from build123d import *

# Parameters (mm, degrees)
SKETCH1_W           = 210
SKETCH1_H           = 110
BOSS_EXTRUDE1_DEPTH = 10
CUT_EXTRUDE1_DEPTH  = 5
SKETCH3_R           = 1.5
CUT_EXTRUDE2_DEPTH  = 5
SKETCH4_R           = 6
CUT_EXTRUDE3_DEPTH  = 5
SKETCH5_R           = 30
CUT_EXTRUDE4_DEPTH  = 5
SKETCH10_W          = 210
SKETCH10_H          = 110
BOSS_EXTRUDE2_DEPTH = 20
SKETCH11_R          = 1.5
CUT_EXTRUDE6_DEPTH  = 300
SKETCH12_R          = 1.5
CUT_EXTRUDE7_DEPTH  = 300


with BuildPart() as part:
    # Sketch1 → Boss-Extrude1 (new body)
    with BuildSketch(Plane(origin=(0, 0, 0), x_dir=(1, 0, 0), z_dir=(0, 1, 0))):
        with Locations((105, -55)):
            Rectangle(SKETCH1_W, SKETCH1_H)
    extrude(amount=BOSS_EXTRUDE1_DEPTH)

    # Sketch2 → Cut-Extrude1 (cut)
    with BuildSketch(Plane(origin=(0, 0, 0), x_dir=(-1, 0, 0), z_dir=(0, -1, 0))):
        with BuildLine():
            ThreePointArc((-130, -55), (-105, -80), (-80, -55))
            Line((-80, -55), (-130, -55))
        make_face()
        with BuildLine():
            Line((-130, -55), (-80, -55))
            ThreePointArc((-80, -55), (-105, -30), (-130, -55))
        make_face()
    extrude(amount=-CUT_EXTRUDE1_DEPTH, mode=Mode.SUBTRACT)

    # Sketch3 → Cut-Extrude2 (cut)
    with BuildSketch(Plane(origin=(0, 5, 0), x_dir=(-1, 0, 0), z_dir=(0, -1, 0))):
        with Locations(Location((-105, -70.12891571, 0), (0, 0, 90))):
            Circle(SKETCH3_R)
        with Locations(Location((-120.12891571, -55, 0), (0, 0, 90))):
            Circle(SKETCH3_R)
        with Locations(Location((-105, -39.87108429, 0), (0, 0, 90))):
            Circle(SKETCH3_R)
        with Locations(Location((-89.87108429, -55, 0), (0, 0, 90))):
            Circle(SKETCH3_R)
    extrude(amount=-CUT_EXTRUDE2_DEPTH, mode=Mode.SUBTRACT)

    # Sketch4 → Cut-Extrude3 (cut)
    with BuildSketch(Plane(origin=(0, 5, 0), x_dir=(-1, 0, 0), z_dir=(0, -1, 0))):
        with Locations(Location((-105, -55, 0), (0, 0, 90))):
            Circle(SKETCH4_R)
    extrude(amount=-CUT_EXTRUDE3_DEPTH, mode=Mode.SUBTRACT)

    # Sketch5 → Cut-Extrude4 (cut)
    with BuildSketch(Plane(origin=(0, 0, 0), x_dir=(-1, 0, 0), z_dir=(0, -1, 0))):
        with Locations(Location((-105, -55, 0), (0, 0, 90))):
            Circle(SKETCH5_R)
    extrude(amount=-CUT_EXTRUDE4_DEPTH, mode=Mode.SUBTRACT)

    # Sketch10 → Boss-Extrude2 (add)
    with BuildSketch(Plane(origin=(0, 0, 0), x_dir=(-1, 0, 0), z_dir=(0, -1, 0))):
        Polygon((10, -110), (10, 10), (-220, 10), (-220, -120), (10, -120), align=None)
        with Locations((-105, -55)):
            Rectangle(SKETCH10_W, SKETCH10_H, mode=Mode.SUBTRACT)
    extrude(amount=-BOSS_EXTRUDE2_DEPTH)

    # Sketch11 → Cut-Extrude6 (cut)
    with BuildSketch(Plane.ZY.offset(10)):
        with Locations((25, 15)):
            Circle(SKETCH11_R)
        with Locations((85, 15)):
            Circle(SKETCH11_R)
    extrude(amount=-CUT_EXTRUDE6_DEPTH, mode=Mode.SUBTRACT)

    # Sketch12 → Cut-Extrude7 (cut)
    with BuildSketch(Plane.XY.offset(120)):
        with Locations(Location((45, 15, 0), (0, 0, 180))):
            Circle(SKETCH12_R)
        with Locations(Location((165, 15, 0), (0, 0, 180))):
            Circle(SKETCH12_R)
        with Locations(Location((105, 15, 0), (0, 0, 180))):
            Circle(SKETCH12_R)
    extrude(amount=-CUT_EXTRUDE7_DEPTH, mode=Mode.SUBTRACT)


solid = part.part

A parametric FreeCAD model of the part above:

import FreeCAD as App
import Part
import Sketcher

doc = App.newDocument("Part")
body = doc.addObject("PartDesign::Body", "Body")

sketch1 = doc.addObject("Sketcher::SketchObject", "Sketch")
body.addObject(sketch1)
sketch1.AttachmentSupport = (doc.XZ_Plane, [""])
sketch1.MapMode = "FlatFace"
sketch1.addGeometry(Part.LineSegment(App.Vector(0, 0, 0), App.Vector(0, 110, 0)), False)
sketch1.addGeometry(Part.LineSegment(App.Vector(0, 110, 0), App.Vector(210, 110, 0)), False)
sketch1.addGeometry(Part.LineSegment(App.Vector(210, 110, 0), App.Vector(210, 0, 0)), False)
sketch1.addGeometry(Part.LineSegment(App.Vector(210, 0, 0), App.Vector(0, 0, 0)), False)
sketch1.addConstraint(Sketcher.Constraint("Coincident", 0, 2, 1, 1))
sketch1.addConstraint(Sketcher.Constraint("Coincident", 1, 2, 2, 1))
sketch1.addConstraint(Sketcher.Constraint("Coincident", 2, 2, 3, 1))
sketch1.addConstraint(Sketcher.Constraint("Coincident", 3, 2, 0, 1))
sketch1.addConstraint(Sketcher.Constraint("Vertical", 0))
sketch1.addConstraint(Sketcher.Constraint("Horizontal", 1))
sketch1.addConstraint(Sketcher.Constraint("Vertical", 2))
sketch1.addConstraint(Sketcher.Constraint("Horizontal", 3))
sketch1.addConstraint(Sketcher.Constraint("Coincident", 3, 2, -1, 1))
sketch1.addConstraint(Sketcher.Constraint("DistanceX", 1, 1, 1, 2, 210.0))
sketch1.addConstraint(Sketcher.Constraint("DistanceY", 0, 1, 0, 2, 110.0))
pad1 = doc.addObject("PartDesign::Pad", "Pad")
body.addObject(pad1)
pad1.Profile = sketch1
pad1.Length = 10
pad1.Reversed = True

sketch2 = doc.addObject("Sketcher::SketchObject", "Sketch001")
body.addObject(sketch2)
sketch2.AttachmentSupport = (doc.XZ_Plane, [""])
sketch2.MapMode = "FlatFace"
sketch2.addGeometry(Part.Circle(App.Vector(105, 55, 0), App.Vector(0, 0, 1), 25), False)
sketch2.addConstraint(Sketcher.Constraint("Diameter", 0, 50.0))
sketch2.addConstraint(Sketcher.Constraint("DistanceX", -1, 1, 0, 3, 105.0))
sketch2.addConstraint(Sketcher.Constraint("DistanceY", -1, 1, 0, 3, 55.0))
pocket1 = doc.addObject("PartDesign::Pocket", "Pocket")
body.addObject(pocket1)
pocket1.Profile = sketch2
pocket1.Length = 5

sketch3 = doc.addObject("Sketcher::SketchObject", "Sketch002")
body.addObject(sketch3)
sketch3.AttachmentSupport = (doc.XZ_Plane, [""])
sketch3.MapMode = "FlatFace"
sketch3.AttachmentOffset = App.Placement(App.Vector(0, 0, -5), App.Rotation())
sketch3.addGeometry(Part.Circle(App.Vector(105, 70.128916, 0), App.Vector(0, 0, 1), 1.5), False)
sketch3.addGeometry(Part.Circle(App.Vector(120.128916, 55, 0), App.Vector(0, 0, 1), 1.5), False)
sketch3.addGeometry(Part.Circle(App.Vector(105, 39.871084, 0), App.Vector(0, 0, 1), 1.5), False)
sketch3.addGeometry(Part.Circle(App.Vector(89.871084, 55, 0), App.Vector(0, 0, 1), 1.5), False)
sketch3.addConstraint(Sketcher.Constraint("Equal", 0, 1))
sketch3.addConstraint(Sketcher.Constraint("Equal", 1, 2))
sketch3.addConstraint(Sketcher.Constraint("Equal", 2, 3))
sketch3.addConstraint(Sketcher.Constraint("Horizontal", 1, 3, 3, 3))
sketch3.addConstraint(Sketcher.Constraint("Vertical", 0, 3, 2, 3))
sketch3.addConstraint(Sketcher.Constraint("Diameter", 0, 3.0))
sketch3.addConstraint(Sketcher.Constraint("DistanceX", -1, 1, 0, 3, 105.0))
sketch3.addConstraint(Sketcher.Constraint("DistanceY", -1, 1, 1, 3, 55.0))
sketch3.addConstraint(Sketcher.Constraint("DistanceY", 2, 3, 0, 3, 30.257831))
sketch3.addConstraint(Sketcher.Constraint("DistanceX", 3, 3, 1, 3, 30.257831))
sketch3.addConstraint(Sketcher.Constraint("DistanceY", -1, 1, 0, 3, 70.128916))
sketch3.addConstraint(Sketcher.Constraint("DistanceX", -1, 1, 1, 3, 120.128916))
pocket2 = doc.addObject("PartDesign::Pocket", "Pocket001")
body.addObject(pocket2)
pocket2.Profile = sketch3
pocket2.Length = 5

sketch4 = doc.addObject("Sketcher::SketchObject", "Sketch003")
body.addObject(sketch4)
sketch4.AttachmentSupport = (doc.XZ_Plane, [""])
sketch4.MapMode = "FlatFace"
sketch4.AttachmentOffset = App.Placement(App.Vector(0, 0, -5), App.Rotation())
sketch4.addGeometry(Part.Circle(App.Vector(105, 55, 0), App.Vector(0, 0, 1), 6), False)
sketch4.addConstraint(Sketcher.Constraint("Diameter", 0, 12.0))
sketch4.addConstraint(Sketcher.Constraint("DistanceX", -1, 1, 0, 3, 105.0))
sketch4.addConstraint(Sketcher.Constraint("DistanceY", -1, 1, 0, 3, 55.0))
pocket3 = doc.addObject("PartDesign::Pocket", "Pocket002")
body.addObject(pocket3)
pocket3.Profile = sketch4
pocket3.Length = 5

sketch5 = doc.addObject("Sketcher::SketchObject", "Sketch004")
body.addObject(sketch5)
sketch5.AttachmentSupport = (doc.XZ_Plane, [""])
sketch5.MapMode = "FlatFace"
sketch5.addGeometry(Part.Circle(App.Vector(105, 55, 0), App.Vector(0, 0, 1), 30), False)
sketch5.addConstraint(Sketcher.Constraint("Diameter", 0, 60.0))
sketch5.addConstraint(Sketcher.Constraint("DistanceX", -1, 1, 0, 3, 105.0))
sketch5.addConstraint(Sketcher.Constraint("DistanceY", -1, 1, 0, 3, 55.0))
pocket4 = doc.addObject("PartDesign::Pocket", "Pocket003")
body.addObject(pocket4)
pocket4.Profile = sketch5
pocket4.Length = 5

sketch6 = doc.addObject("Sketcher::SketchObject", "Sketch005")
body.addObject(sketch6)
sketch6.AttachmentSupport = (doc.XZ_Plane, [""])
sketch6.MapMode = "FlatFace"
sketch6.addGeometry(Part.LineSegment(App.Vector(-10, -10, 0), App.Vector(220, -10, 0)), False)
sketch6.addGeometry(Part.LineSegment(App.Vector(220, -10, 0), App.Vector(220, 120, 0)), False)
sketch6.addGeometry(Part.LineSegment(App.Vector(220, 120, 0), App.Vector(-10, 120, 0)), False)
sketch6.addGeometry(Part.LineSegment(App.Vector(-10, 120, 0), App.Vector(-10, -10, 0)), False)
sketch6.addGeometry(Part.LineSegment(App.Vector(0, 110, 0), App.Vector(210, 110, 0)), False)
sketch6.addGeometry(Part.LineSegment(App.Vector(210, 110, 0), App.Vector(210, 0, 0)), False)
sketch6.addGeometry(Part.LineSegment(App.Vector(210, 0, 0), App.Vector(0, 0, 0)), False)
sketch6.addGeometry(Part.LineSegment(App.Vector(0, 0, 0), App.Vector(0, 110, 0)), False)
sketch6.addConstraint(Sketcher.Constraint("Coincident", 0, 2, 1, 1))
sketch6.addConstraint(Sketcher.Constraint("Coincident", 1, 2, 2, 1))
sketch6.addConstraint(Sketcher.Constraint("Coincident", 2, 2, 3, 1))
sketch6.addConstraint(Sketcher.Constraint("Coincident", 3, 2, 0, 1))
sketch6.addConstraint(Sketcher.Constraint("Coincident", 4, 2, 5, 1))
sketch6.addConstraint(Sketcher.Constraint("Coincident", 5, 2, 6, 1))
sketch6.addConstraint(Sketcher.Constraint("Coincident", 6, 2, 7, 1))
sketch6.addConstraint(Sketcher.Constraint("Coincident", 7, 2, 4, 1))
sketch6.addConstraint(Sketcher.Constraint("Horizontal", 0))
sketch6.addConstraint(Sketcher.Constraint("Vertical", 1))
sketch6.addConstraint(Sketcher.Constraint("Horizontal", 2))
sketch6.addConstraint(Sketcher.Constraint("Vertical", 3))
sketch6.addConstraint(Sketcher.Constraint("Horizontal", 4))
sketch6.addConstraint(Sketcher.Constraint("Vertical", 5))
sketch6.addConstraint(Sketcher.Constraint("Horizontal", 6))
sketch6.addConstraint(Sketcher.Constraint("Vertical", 7))
sketch6.addConstraint(Sketcher.Constraint("Coincident", 6, 2, -1, 1))
sketch6.addConstraint(Sketcher.Constraint("DistanceX", 0, 1, 0, 2, 230.0))
sketch6.addConstraint(Sketcher.Constraint("DistanceX", 4, 1, 4, 2, 210.0))
sketch6.addConstraint(Sketcher.Constraint("DistanceY", 1, 1, 1, 2, 130.0))
sketch6.addConstraint(Sketcher.Constraint("DistanceY", 5, 2, 5, 1, 110.0))
sketch6.addConstraint(Sketcher.Constraint("DistanceX", -1, 1, 0, 2, 220.0))
sketch6.addConstraint(Sketcher.Constraint("DistanceY", 0, 2, -1, 1, 10.0))
pad2 = doc.addObject("PartDesign::Pad", "Pad001")
body.addObject(pad2)
pad2.Profile = sketch6
pad2.Length = 20
pad2.Reversed = True

sketch7 = doc.addObject("Sketcher::SketchObject", "Sketch006")
body.addObject(sketch7)
sketch7.AttachmentSupport = (doc.YZ_Plane, [""])
sketch7.MapMode = "FlatFace"
sketch7.AttachmentOffset = App.Placement(App.Vector(0, 0, -10), App.Rotation())
sketch7.addGeometry(Part.Circle(App.Vector(15, 25, 0), App.Vector(0, 0, 1), 1.5), False)
sketch7.addGeometry(Part.Circle(App.Vector(15, 85, 0), App.Vector(0, 0, 1), 1.5), False)
sketch7.addConstraint(Sketcher.Constraint("Equal", 0, 1))
sketch7.addConstraint(Sketcher.Constraint("Vertical", 0, 3, 1, 3))
sketch7.addConstraint(Sketcher.Constraint("Diameter", 0, 3.0))
sketch7.addConstraint(Sketcher.Constraint("DistanceX", -1, 1, 0, 3, 15.0))
sketch7.addConstraint(Sketcher.Constraint("DistanceY", -1, 1, 0, 3, 25.0))
sketch7.addConstraint(Sketcher.Constraint("DistanceY", -1, 1, 1, 3, 85.0))
pocket5 = doc.addObject("PartDesign::Pocket", "Pocket004")
body.addObject(pocket5)
pocket5.Profile = sketch7
pocket5.Length = 300
pocket5.Reversed = True

sketch8 = doc.addObject("Sketcher::SketchObject", "Sketch007")
body.addObject(sketch8)
sketch8.AttachmentSupport = (doc.XY_Plane, [""])
sketch8.MapMode = "FlatFace"
sketch8.AttachmentOffset = App.Placement(App.Vector(0, 0, 120), App.Rotation())
sketch8.addGeometry(Part.Circle(App.Vector(45, 15, 0), App.Vector(0, 0, 1), 1.5), False)
sketch8.addGeometry(Part.Circle(App.Vector(165, 15, 0), App.Vector(0, 0, 1), 1.5), False)
sketch8.addGeometry(Part.Circle(App.Vector(105, 15, 0), App.Vector(0, 0, 1), 1.5), False)
sketch8.addConstraint(Sketcher.Constraint("Equal", 0, 1))
sketch8.addConstraint(Sketcher.Constraint("Equal", 1, 2))
sketch8.addConstraint(Sketcher.Constraint("Horizontal", 0, 3, 1, 3))
sketch8.addConstraint(Sketcher.Constraint("Horizontal", 1, 3, 2, 3))
sketch8.addConstraint(Sketcher.Constraint("Diameter", 0, 3.0))
sketch8.addConstraint(Sketcher.Constraint("DistanceX", -1, 1, 0, 3, 45.0))
sketch8.addConstraint(Sketcher.Constraint("DistanceY", -1, 1, 0, 3, 15.0))
sketch8.addConstraint(Sketcher.Constraint("DistanceX", -1, 1, 1, 3, 165.0))
sketch8.addConstraint(Sketcher.Constraint("DistanceX", -1, 1, 2, 3, 105.0))
pocket6 = doc.addObject("PartDesign::Pocket", "Pocket005")
body.addObject(pocket6)
pocket6.Profile = sketch8
pocket6.Length = 300

doc.recompute()
